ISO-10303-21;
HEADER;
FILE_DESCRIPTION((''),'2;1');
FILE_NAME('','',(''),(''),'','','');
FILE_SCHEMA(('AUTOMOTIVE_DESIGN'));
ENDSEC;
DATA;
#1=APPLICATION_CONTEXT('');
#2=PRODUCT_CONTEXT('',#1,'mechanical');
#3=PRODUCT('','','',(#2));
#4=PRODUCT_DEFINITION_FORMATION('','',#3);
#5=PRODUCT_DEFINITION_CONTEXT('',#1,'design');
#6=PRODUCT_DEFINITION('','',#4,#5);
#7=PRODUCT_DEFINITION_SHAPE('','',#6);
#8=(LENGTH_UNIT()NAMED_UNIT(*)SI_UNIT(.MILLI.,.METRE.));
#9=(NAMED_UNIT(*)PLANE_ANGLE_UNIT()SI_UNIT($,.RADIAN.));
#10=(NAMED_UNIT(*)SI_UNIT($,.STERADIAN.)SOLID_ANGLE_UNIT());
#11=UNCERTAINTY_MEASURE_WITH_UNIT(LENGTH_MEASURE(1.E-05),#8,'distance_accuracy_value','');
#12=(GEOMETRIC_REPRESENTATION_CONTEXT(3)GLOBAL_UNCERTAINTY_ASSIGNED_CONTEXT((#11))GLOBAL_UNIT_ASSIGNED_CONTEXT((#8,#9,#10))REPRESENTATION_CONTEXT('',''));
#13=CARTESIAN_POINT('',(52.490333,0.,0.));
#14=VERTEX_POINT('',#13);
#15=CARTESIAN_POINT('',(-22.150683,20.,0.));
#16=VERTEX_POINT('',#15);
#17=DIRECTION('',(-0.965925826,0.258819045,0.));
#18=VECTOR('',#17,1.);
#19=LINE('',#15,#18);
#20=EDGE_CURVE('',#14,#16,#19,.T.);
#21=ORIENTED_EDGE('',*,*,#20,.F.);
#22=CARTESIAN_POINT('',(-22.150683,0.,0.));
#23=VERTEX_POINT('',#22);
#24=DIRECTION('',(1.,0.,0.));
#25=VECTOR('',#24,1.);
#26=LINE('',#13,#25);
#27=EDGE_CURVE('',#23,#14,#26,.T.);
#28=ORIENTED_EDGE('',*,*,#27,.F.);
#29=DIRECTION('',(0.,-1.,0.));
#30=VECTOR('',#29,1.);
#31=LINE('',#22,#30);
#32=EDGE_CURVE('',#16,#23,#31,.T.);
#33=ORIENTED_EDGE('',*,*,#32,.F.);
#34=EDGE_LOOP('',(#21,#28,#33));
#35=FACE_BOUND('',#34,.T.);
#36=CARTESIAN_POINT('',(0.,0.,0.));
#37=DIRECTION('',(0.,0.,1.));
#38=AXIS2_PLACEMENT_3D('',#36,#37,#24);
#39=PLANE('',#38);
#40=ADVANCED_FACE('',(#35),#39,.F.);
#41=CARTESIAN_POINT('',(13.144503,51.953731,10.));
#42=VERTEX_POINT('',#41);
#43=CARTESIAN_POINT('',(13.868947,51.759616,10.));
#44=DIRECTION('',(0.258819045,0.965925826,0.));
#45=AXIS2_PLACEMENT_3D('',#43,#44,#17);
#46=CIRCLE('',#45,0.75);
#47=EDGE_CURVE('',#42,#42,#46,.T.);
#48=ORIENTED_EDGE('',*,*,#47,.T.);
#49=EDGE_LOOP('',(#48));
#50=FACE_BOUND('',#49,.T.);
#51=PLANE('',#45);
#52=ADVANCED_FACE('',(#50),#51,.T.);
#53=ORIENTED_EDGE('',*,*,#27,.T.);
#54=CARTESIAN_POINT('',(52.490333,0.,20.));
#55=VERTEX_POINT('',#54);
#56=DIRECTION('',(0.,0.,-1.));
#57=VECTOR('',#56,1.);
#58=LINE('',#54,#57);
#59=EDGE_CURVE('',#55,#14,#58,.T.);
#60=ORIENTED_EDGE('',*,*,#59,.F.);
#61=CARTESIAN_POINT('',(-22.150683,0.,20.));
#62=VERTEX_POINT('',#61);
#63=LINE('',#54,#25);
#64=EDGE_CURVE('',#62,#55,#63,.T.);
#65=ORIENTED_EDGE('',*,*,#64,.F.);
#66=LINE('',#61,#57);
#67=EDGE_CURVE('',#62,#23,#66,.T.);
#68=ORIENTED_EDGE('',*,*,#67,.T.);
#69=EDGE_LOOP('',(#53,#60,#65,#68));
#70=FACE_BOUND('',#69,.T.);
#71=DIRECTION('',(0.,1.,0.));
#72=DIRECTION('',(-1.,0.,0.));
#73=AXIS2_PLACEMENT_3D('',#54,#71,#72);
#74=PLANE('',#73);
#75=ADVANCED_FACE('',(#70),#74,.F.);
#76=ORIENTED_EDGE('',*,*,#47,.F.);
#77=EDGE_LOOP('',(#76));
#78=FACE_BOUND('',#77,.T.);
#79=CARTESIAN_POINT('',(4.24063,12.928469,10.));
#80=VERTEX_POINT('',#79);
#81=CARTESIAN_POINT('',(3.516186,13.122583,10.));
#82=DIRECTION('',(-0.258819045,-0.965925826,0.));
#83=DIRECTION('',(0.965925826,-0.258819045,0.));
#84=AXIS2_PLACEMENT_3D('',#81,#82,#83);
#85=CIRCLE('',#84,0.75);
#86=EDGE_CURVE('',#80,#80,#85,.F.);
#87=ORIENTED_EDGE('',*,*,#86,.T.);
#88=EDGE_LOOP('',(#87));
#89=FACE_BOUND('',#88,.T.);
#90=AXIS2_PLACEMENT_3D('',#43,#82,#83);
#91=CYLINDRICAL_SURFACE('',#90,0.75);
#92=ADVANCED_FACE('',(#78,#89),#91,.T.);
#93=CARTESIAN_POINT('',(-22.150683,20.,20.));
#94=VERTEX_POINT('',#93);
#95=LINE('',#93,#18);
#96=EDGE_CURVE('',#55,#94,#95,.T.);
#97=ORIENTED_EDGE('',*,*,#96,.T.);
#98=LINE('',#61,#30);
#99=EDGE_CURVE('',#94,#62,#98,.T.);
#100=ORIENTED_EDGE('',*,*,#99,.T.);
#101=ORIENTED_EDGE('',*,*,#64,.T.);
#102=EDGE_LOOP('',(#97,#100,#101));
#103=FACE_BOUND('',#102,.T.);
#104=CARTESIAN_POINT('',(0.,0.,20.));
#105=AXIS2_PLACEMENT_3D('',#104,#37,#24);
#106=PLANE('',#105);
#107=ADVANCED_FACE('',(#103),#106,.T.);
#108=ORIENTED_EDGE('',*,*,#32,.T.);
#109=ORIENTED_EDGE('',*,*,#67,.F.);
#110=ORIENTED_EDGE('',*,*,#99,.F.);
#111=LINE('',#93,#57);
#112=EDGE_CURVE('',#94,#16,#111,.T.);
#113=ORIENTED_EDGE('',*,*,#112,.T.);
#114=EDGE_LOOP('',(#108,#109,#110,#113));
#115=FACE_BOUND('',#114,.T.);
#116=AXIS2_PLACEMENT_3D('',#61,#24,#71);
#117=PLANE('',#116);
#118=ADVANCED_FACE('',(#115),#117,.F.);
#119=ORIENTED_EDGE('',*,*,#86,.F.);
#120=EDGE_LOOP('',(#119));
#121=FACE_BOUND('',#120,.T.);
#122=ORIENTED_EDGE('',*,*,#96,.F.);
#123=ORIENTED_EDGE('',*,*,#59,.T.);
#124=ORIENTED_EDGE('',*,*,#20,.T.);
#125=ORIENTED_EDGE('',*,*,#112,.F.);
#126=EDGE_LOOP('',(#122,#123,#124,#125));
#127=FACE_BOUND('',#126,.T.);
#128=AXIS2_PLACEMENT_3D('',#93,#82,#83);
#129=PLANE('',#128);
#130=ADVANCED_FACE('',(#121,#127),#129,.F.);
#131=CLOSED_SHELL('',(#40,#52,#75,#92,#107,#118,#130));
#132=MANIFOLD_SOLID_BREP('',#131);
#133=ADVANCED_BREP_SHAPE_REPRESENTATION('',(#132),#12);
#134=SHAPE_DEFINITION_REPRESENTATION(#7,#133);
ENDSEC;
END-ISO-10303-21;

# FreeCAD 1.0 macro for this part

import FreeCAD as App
import Part
import Sketcher
Q = App.Units.Quantity

doc = App.newDocument("Part")
body = doc.addObject("PartDesign::Body", "Body")

# Sketch on XY plane
sketch1 = doc.addObject("Sketcher::SketchObject", "Sketch")
body.addObject(sketch1)
sketch1.AttachmentSupport = (doc.XY_Plane, [""])
sketch1.MapMode = "FlatFace"
sketch1.addGeometry([
    Part.LineSegment(App.Vector(52, 0, 0), App.Vector(-22, 20, 0)),
    Part.LineSegment(App.Vector(-22, 20, 0), App.Vector(-22, 0, 0)),
    Part.LineSegment(App.Vector(-22, 0, 0), App.Vector(52, 0, 0)),
], False)
sketch1.addConstraint([
    Sketcher.Constraint("Coincident", 0, 2, 1, 1),
    Sketcher.Constraint("Coincident", 1, 2, 2, 1),
    Sketcher.Constraint("Coincident", 2, 2, 0, 1),
    Sketcher.Constraint("Vertical", 1),
    Sketcher.Constraint("Horizontal", 2),
    Sketcher.Constraint("PointOnObject", 1, 2, -1),
    Sketcher.Constraint("DistanceY", 1, 2, 1, 1, Q("20 mm")),
    Sketcher.Constraint("Angle", 0, Q("165 deg")),
    Sketcher.Constraint("DistanceX", 0, 2, -1, 1, Q("22.150683 mm")),
])
pad1 = doc.addObject("PartDesign::Pad", "Pad")
body.addObject(pad1)
pad1.Profile = sketch1
pad1.Length = 20

# Sketch on an angled plane
sketch2 = doc.addObject("Sketcher::SketchObject", "Sketch001")
body.addObject(sketch2)
sketch2.Placement = App.Placement(App.Vector(3.516186, 13.122583, 0), App.Rotation(App.Vector(0.965925826, -0.258819045, 0), App.Vector(0, 0, -0.999999999), App.Vector(0.258819045, 0.965925826, 0), "ZXY"))
sketch2.addGeometry(Part.Circle(App.Vector(0, -10, 0), App.Vector(0, 0, 1), 0.8), False)
sketch2.addConstraint([
    Sketcher.Constraint("PointOnObject", 0, 3, -2),
    Sketcher.Constraint("Diameter", 0, Q("1.5 mm")),
    Sketcher.Constraint("DistanceY", 0, 3, -1, 1, Q("10 mm")),
])
pad2 = doc.addObject("PartDesign::Pad", "Pad001")
body.addObject(pad2)
pad2.Profile = sketch2
pad2.Length = 40

doc.recompute()
